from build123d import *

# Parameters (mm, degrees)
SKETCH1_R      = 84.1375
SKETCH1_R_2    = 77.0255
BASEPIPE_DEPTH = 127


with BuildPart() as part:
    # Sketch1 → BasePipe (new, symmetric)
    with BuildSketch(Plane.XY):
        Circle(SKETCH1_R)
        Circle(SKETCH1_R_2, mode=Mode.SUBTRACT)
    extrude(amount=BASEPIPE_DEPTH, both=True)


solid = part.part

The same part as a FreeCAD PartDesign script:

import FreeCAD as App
import Part
import Sketcher
from FreeCAD import Vector
Q = App.Units.Quantity

doc = App.newDocument("Part")
body = doc.addObject("PartDesign::Body", "Body")

# Sketch on XY plane
sketch1 = body.newObject("Sketcher::SketchObject", "Sketch")
sketch1.AttachmentSupport = (doc.getObject("XY_Plane"), [""])
sketch1.MapMode = "FlatFace"
sketch1.addGeometry([
    Part.Circle(Vector(0, 0, 0), Vector(0, 0, 1), 84),
    Part.Circle(Vector(0, 0, 0), Vector(0, 0, 1), 77),
], False)
sketch1.addConstraint([
    Sketcher.Constraint("Coincident", 0, 3, -1, 1),
    Sketcher.Constraint("Coincident", 1, 3, -1, 1),
    Sketcher.Constraint("Diameter", 0, Q("6.625 in")),
    Sketcher.Constraint("Diameter", 1, Q("6.065 in")),
])
pad1 = body.newObject("PartDesign::Pad", "Pad")
pad1.Profile = sketch1
pad1.Length = Q("10 in")
pad1.Midplane = True

doc.recompute()
